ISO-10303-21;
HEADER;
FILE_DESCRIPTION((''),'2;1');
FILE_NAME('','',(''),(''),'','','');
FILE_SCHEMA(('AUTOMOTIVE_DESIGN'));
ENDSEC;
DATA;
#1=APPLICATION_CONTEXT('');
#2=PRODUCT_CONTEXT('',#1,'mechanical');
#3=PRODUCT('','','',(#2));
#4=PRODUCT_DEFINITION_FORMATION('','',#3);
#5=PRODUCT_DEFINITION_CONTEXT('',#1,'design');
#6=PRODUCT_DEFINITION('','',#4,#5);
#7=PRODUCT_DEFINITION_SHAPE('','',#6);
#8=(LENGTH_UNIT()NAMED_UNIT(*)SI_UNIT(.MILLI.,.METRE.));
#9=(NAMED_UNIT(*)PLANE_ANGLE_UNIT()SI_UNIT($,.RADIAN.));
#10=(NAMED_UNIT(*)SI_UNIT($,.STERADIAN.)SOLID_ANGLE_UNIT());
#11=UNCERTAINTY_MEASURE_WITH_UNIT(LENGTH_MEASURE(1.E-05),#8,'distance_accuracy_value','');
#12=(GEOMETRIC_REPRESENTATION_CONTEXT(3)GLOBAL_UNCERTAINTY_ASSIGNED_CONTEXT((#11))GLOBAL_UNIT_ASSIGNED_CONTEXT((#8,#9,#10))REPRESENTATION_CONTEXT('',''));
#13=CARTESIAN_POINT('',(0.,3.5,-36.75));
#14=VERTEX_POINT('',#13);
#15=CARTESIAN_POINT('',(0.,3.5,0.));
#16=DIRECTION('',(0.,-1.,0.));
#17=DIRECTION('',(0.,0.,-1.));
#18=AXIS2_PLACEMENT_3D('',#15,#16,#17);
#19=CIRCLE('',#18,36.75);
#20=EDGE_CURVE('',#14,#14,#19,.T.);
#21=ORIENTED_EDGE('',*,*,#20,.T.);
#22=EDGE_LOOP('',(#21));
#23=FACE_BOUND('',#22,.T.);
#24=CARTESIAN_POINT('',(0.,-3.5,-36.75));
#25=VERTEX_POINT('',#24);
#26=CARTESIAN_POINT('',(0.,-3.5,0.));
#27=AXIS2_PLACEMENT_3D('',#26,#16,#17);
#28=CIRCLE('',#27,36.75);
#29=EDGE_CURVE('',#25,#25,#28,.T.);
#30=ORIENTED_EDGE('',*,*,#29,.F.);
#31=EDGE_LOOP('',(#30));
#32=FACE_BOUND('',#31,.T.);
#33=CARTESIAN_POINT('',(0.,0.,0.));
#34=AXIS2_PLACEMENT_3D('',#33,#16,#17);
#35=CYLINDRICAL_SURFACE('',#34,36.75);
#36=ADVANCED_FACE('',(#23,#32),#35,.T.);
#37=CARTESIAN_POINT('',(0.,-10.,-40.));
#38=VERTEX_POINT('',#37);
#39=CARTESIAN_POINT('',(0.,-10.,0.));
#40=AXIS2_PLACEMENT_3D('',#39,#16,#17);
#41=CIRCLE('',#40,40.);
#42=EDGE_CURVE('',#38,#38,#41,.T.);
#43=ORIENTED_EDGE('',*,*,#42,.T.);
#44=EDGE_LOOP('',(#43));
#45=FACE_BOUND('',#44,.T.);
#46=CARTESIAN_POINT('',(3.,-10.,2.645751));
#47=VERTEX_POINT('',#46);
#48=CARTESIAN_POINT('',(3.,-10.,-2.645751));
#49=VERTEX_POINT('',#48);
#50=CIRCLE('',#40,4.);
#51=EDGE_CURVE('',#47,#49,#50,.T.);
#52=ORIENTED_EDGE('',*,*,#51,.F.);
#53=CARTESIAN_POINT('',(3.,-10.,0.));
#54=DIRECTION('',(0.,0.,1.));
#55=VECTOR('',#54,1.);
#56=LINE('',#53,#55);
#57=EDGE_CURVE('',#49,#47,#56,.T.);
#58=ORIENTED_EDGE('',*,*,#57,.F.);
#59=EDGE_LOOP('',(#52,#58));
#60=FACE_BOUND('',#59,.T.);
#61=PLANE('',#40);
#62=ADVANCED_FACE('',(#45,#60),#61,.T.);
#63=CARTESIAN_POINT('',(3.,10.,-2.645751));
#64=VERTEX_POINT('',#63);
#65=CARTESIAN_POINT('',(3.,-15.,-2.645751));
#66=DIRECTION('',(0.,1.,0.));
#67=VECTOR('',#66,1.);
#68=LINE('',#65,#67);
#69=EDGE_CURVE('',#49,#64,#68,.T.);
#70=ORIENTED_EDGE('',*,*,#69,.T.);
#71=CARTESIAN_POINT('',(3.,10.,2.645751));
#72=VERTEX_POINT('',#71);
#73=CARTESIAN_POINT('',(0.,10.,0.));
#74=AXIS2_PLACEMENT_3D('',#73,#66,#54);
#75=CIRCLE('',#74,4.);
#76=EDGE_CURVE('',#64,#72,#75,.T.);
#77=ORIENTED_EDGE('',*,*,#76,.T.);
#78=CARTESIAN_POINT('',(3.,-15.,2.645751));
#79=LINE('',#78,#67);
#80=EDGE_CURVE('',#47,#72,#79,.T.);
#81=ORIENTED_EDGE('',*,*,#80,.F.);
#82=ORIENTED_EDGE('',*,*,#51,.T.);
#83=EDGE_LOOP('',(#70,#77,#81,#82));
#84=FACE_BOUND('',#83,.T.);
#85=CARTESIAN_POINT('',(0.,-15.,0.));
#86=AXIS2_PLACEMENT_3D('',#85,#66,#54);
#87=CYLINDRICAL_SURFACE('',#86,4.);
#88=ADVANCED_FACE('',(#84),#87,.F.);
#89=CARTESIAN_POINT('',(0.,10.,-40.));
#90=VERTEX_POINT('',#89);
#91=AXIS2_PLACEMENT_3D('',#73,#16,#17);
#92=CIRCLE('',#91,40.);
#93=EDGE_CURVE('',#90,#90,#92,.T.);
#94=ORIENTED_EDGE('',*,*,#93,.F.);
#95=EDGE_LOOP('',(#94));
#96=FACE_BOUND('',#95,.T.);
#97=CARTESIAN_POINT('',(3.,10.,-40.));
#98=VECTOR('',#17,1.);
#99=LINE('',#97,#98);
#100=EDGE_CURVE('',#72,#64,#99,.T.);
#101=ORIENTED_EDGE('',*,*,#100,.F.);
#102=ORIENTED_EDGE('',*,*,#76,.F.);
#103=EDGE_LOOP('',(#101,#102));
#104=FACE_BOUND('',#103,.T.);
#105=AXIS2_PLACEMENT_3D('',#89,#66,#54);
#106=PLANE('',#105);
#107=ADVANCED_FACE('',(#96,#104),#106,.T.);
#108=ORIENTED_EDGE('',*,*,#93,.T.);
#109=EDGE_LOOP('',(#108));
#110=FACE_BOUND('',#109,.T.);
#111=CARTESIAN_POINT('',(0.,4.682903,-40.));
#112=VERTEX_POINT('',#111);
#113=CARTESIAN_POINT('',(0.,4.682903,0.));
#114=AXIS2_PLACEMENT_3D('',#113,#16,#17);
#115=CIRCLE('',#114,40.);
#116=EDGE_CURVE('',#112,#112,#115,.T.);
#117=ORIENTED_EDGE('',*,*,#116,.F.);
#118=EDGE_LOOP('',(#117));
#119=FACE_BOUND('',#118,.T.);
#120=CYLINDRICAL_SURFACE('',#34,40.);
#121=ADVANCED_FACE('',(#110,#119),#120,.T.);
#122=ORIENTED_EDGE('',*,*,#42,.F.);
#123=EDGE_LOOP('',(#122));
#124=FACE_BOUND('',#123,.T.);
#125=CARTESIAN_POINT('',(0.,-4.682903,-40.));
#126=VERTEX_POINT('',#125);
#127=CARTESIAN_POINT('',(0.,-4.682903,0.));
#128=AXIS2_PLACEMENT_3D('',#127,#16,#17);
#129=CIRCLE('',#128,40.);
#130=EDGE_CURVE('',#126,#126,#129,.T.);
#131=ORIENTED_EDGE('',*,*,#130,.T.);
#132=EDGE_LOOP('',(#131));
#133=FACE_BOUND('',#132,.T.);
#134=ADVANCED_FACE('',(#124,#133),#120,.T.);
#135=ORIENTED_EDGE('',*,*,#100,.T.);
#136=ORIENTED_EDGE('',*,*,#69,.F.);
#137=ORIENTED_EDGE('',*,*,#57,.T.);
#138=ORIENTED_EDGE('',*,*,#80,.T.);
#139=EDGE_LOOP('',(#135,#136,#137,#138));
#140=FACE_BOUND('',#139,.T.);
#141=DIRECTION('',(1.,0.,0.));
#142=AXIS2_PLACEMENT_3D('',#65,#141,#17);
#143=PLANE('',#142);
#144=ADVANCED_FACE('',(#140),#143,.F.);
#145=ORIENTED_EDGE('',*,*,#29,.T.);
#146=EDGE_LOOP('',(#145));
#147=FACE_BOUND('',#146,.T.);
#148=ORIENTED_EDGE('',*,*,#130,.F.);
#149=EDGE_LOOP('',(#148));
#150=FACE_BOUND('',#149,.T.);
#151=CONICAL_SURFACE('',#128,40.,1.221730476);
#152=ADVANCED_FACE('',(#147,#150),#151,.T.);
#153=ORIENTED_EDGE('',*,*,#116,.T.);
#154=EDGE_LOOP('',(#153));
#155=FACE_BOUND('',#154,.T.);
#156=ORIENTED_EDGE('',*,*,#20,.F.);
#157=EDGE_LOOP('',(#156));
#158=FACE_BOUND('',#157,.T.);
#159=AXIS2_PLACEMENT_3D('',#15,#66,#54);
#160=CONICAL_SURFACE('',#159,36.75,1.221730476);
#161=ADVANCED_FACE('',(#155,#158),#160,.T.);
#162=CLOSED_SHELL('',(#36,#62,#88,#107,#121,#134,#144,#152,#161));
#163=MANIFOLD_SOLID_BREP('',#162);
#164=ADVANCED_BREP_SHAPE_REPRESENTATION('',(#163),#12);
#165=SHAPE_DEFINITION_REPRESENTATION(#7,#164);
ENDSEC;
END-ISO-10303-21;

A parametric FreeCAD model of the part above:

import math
import FreeCAD as App
import Part
import Sketcher

V = App.Vector
Q = App.Units.Quantity


def add_polygon(sketch, points):
    """Adds a closed chain of lines whose ends are joined by coincident constraints."""
    first, n = sketch.GeometryCount, len(points)
    for a, b in zip(points, points[1:] + points[:1]):
        sketch.addGeometry(Part.LineSegment(App.Vector(*a, 0), App.Vector(*b, 0)), False)
    for i in range(n):
        sketch.addConstraint(Sketcher.Constraint("Coincident", first + i, 2, first + (i + 1) % n, 1))

doc = App.newDocument("Part")
params = doc.addObject("Spreadsheet::Sheet", "Params")
for row, (alias, value) in enumerate([
    ("sketch1_width", "20 mm"),
    ("sketch1_width2", "7 mm"),
    ("sketch1_height", "40 mm"),
    ("revolution_angle", "360 deg"),
    ("sketch2_radius", "4 mm"),
    ("pocket1_length", "30 mm"),
], start=1):
    params.set(f"A{row}", alias)
    params.set(f"B{row}", "=" + value)
    params.setAlias(f"B{row}", alias)

body = doc.addObject("PartDesign::Body", "Body")

sketch1 = body.newObject("Sketcher::SketchObject", "Sketch")
sketch1.AttachmentSupport = (doc.getObject("YZ_Plane"), [""])
sketch1.MapMode = "FlatFace"
add_polygon(sketch1, [(10, -40), (10, 0), (-10, 0), (-10, -40), (-4.7, -40), (-3.5, -36.8), (3.5, -36.8), (4.7, -40)])
sketch1.addConstraint(Sketcher.Constraint("Vertical", 0))
sketch1.addConstraint(Sketcher.Constraint("Horizontal", 1))
sketch1.addConstraint(Sketcher.Constraint("Vertical", 2))
sketch1.addConstraint(Sketcher.Constraint("Horizontal", 3))
sketch1.addConstraint(Sketcher.Constraint("Horizontal", 5))
sketch1.addConstraint(Sketcher.Constraint("Horizontal", 7))
sketch1.addConstraint(Sketcher.Constraint("Symmetric", 0, 2, 1, 2, -1, 1))
sketch1.addConstraint(Sketcher.Constraint("Symmetric", 3, 2, 6, 2, -2))
sketch1.addConstraint(Sketcher.Constraint("Equal", 4, 6))
sketch1.addConstraint(Sketcher.Constraint("DistanceX", 1, 2, 1, 1, Q("20 mm")))
sketch1.addConstraint(Sketcher.Constraint("DistanceX", 5, 1, 5, 2, Q("7 mm")))
sketch1.addConstraint(Sketcher.Constraint("DistanceY", 0, 1, 0, 2, Q("40 mm")))
sketch1.addConstraint(Sketcher.Constraint("Angle", 4, Q("70 deg")))
sketch1.addConstraint(Sketcher.Constraint("DistanceY", 4, 2, -1, 1, Q("36.75 mm")))
sketch1.setExpression("Constraints[17]", "Params.sketch1_width")
sketch1.setExpression("Constraints[18]", "Params.sketch1_width2")
sketch1.setExpression("Constraints[19]", "Params.sketch1_height")
revolution = body.newObject("PartDesign::Revolution", "Revolution")
revolution.Profile = sketch1
revolution.ReferenceAxis = (sketch1, ["H_Axis"])
revolution.setExpression("Angle", "Params.revolution_angle")

sketch2 = body.newObject("Sketcher::SketchObject", "Sketch001")
sketch2.AttachmentSupport = (doc.getObject("XZ_Plane"), [""])
sketch2.MapMode = "FlatFace"
sketch2.addGeometry(Part.LineSegment(V(3, 2.6, 0), V(3, -2.6, 0)), False)
sketch2.addGeometry(Part.ArcOfCircle(Part.Circle(V(0, 0, 0), V(0, 0, 1), 4), math.radians(41), math.radians(319)), False)
sketch2.addConstraint(Sketcher.Constraint("Coincident", 0, 1, 1, 1))
sketch2.addConstraint(Sketcher.Constraint("Coincident", 1, 2, 0, 2))
sketch2.addConstraint(Sketcher.Constraint("Vertical", 0))
sketch2.addConstraint(Sketcher.Constraint("Coincident", 1, 3, -1, 1))
sketch2.addConstraint(Sketcher.Constraint("Radius", 1, Q("4 mm")))
sketch2.addConstraint(Sketcher.Constraint("DistanceX", -1, 1, 0, 1, Q("3 mm")))
sketch2.setExpression("Constraints[4]", "Params.sketch2_radius")
pocket1 = body.newObject("PartDesign::Pocket", "Pocket")
pocket1.Profile = sketch2
pocket1.setExpression("Length", "Params.pocket1_length")
pocket1.Midplane = True

doc.recompute()
